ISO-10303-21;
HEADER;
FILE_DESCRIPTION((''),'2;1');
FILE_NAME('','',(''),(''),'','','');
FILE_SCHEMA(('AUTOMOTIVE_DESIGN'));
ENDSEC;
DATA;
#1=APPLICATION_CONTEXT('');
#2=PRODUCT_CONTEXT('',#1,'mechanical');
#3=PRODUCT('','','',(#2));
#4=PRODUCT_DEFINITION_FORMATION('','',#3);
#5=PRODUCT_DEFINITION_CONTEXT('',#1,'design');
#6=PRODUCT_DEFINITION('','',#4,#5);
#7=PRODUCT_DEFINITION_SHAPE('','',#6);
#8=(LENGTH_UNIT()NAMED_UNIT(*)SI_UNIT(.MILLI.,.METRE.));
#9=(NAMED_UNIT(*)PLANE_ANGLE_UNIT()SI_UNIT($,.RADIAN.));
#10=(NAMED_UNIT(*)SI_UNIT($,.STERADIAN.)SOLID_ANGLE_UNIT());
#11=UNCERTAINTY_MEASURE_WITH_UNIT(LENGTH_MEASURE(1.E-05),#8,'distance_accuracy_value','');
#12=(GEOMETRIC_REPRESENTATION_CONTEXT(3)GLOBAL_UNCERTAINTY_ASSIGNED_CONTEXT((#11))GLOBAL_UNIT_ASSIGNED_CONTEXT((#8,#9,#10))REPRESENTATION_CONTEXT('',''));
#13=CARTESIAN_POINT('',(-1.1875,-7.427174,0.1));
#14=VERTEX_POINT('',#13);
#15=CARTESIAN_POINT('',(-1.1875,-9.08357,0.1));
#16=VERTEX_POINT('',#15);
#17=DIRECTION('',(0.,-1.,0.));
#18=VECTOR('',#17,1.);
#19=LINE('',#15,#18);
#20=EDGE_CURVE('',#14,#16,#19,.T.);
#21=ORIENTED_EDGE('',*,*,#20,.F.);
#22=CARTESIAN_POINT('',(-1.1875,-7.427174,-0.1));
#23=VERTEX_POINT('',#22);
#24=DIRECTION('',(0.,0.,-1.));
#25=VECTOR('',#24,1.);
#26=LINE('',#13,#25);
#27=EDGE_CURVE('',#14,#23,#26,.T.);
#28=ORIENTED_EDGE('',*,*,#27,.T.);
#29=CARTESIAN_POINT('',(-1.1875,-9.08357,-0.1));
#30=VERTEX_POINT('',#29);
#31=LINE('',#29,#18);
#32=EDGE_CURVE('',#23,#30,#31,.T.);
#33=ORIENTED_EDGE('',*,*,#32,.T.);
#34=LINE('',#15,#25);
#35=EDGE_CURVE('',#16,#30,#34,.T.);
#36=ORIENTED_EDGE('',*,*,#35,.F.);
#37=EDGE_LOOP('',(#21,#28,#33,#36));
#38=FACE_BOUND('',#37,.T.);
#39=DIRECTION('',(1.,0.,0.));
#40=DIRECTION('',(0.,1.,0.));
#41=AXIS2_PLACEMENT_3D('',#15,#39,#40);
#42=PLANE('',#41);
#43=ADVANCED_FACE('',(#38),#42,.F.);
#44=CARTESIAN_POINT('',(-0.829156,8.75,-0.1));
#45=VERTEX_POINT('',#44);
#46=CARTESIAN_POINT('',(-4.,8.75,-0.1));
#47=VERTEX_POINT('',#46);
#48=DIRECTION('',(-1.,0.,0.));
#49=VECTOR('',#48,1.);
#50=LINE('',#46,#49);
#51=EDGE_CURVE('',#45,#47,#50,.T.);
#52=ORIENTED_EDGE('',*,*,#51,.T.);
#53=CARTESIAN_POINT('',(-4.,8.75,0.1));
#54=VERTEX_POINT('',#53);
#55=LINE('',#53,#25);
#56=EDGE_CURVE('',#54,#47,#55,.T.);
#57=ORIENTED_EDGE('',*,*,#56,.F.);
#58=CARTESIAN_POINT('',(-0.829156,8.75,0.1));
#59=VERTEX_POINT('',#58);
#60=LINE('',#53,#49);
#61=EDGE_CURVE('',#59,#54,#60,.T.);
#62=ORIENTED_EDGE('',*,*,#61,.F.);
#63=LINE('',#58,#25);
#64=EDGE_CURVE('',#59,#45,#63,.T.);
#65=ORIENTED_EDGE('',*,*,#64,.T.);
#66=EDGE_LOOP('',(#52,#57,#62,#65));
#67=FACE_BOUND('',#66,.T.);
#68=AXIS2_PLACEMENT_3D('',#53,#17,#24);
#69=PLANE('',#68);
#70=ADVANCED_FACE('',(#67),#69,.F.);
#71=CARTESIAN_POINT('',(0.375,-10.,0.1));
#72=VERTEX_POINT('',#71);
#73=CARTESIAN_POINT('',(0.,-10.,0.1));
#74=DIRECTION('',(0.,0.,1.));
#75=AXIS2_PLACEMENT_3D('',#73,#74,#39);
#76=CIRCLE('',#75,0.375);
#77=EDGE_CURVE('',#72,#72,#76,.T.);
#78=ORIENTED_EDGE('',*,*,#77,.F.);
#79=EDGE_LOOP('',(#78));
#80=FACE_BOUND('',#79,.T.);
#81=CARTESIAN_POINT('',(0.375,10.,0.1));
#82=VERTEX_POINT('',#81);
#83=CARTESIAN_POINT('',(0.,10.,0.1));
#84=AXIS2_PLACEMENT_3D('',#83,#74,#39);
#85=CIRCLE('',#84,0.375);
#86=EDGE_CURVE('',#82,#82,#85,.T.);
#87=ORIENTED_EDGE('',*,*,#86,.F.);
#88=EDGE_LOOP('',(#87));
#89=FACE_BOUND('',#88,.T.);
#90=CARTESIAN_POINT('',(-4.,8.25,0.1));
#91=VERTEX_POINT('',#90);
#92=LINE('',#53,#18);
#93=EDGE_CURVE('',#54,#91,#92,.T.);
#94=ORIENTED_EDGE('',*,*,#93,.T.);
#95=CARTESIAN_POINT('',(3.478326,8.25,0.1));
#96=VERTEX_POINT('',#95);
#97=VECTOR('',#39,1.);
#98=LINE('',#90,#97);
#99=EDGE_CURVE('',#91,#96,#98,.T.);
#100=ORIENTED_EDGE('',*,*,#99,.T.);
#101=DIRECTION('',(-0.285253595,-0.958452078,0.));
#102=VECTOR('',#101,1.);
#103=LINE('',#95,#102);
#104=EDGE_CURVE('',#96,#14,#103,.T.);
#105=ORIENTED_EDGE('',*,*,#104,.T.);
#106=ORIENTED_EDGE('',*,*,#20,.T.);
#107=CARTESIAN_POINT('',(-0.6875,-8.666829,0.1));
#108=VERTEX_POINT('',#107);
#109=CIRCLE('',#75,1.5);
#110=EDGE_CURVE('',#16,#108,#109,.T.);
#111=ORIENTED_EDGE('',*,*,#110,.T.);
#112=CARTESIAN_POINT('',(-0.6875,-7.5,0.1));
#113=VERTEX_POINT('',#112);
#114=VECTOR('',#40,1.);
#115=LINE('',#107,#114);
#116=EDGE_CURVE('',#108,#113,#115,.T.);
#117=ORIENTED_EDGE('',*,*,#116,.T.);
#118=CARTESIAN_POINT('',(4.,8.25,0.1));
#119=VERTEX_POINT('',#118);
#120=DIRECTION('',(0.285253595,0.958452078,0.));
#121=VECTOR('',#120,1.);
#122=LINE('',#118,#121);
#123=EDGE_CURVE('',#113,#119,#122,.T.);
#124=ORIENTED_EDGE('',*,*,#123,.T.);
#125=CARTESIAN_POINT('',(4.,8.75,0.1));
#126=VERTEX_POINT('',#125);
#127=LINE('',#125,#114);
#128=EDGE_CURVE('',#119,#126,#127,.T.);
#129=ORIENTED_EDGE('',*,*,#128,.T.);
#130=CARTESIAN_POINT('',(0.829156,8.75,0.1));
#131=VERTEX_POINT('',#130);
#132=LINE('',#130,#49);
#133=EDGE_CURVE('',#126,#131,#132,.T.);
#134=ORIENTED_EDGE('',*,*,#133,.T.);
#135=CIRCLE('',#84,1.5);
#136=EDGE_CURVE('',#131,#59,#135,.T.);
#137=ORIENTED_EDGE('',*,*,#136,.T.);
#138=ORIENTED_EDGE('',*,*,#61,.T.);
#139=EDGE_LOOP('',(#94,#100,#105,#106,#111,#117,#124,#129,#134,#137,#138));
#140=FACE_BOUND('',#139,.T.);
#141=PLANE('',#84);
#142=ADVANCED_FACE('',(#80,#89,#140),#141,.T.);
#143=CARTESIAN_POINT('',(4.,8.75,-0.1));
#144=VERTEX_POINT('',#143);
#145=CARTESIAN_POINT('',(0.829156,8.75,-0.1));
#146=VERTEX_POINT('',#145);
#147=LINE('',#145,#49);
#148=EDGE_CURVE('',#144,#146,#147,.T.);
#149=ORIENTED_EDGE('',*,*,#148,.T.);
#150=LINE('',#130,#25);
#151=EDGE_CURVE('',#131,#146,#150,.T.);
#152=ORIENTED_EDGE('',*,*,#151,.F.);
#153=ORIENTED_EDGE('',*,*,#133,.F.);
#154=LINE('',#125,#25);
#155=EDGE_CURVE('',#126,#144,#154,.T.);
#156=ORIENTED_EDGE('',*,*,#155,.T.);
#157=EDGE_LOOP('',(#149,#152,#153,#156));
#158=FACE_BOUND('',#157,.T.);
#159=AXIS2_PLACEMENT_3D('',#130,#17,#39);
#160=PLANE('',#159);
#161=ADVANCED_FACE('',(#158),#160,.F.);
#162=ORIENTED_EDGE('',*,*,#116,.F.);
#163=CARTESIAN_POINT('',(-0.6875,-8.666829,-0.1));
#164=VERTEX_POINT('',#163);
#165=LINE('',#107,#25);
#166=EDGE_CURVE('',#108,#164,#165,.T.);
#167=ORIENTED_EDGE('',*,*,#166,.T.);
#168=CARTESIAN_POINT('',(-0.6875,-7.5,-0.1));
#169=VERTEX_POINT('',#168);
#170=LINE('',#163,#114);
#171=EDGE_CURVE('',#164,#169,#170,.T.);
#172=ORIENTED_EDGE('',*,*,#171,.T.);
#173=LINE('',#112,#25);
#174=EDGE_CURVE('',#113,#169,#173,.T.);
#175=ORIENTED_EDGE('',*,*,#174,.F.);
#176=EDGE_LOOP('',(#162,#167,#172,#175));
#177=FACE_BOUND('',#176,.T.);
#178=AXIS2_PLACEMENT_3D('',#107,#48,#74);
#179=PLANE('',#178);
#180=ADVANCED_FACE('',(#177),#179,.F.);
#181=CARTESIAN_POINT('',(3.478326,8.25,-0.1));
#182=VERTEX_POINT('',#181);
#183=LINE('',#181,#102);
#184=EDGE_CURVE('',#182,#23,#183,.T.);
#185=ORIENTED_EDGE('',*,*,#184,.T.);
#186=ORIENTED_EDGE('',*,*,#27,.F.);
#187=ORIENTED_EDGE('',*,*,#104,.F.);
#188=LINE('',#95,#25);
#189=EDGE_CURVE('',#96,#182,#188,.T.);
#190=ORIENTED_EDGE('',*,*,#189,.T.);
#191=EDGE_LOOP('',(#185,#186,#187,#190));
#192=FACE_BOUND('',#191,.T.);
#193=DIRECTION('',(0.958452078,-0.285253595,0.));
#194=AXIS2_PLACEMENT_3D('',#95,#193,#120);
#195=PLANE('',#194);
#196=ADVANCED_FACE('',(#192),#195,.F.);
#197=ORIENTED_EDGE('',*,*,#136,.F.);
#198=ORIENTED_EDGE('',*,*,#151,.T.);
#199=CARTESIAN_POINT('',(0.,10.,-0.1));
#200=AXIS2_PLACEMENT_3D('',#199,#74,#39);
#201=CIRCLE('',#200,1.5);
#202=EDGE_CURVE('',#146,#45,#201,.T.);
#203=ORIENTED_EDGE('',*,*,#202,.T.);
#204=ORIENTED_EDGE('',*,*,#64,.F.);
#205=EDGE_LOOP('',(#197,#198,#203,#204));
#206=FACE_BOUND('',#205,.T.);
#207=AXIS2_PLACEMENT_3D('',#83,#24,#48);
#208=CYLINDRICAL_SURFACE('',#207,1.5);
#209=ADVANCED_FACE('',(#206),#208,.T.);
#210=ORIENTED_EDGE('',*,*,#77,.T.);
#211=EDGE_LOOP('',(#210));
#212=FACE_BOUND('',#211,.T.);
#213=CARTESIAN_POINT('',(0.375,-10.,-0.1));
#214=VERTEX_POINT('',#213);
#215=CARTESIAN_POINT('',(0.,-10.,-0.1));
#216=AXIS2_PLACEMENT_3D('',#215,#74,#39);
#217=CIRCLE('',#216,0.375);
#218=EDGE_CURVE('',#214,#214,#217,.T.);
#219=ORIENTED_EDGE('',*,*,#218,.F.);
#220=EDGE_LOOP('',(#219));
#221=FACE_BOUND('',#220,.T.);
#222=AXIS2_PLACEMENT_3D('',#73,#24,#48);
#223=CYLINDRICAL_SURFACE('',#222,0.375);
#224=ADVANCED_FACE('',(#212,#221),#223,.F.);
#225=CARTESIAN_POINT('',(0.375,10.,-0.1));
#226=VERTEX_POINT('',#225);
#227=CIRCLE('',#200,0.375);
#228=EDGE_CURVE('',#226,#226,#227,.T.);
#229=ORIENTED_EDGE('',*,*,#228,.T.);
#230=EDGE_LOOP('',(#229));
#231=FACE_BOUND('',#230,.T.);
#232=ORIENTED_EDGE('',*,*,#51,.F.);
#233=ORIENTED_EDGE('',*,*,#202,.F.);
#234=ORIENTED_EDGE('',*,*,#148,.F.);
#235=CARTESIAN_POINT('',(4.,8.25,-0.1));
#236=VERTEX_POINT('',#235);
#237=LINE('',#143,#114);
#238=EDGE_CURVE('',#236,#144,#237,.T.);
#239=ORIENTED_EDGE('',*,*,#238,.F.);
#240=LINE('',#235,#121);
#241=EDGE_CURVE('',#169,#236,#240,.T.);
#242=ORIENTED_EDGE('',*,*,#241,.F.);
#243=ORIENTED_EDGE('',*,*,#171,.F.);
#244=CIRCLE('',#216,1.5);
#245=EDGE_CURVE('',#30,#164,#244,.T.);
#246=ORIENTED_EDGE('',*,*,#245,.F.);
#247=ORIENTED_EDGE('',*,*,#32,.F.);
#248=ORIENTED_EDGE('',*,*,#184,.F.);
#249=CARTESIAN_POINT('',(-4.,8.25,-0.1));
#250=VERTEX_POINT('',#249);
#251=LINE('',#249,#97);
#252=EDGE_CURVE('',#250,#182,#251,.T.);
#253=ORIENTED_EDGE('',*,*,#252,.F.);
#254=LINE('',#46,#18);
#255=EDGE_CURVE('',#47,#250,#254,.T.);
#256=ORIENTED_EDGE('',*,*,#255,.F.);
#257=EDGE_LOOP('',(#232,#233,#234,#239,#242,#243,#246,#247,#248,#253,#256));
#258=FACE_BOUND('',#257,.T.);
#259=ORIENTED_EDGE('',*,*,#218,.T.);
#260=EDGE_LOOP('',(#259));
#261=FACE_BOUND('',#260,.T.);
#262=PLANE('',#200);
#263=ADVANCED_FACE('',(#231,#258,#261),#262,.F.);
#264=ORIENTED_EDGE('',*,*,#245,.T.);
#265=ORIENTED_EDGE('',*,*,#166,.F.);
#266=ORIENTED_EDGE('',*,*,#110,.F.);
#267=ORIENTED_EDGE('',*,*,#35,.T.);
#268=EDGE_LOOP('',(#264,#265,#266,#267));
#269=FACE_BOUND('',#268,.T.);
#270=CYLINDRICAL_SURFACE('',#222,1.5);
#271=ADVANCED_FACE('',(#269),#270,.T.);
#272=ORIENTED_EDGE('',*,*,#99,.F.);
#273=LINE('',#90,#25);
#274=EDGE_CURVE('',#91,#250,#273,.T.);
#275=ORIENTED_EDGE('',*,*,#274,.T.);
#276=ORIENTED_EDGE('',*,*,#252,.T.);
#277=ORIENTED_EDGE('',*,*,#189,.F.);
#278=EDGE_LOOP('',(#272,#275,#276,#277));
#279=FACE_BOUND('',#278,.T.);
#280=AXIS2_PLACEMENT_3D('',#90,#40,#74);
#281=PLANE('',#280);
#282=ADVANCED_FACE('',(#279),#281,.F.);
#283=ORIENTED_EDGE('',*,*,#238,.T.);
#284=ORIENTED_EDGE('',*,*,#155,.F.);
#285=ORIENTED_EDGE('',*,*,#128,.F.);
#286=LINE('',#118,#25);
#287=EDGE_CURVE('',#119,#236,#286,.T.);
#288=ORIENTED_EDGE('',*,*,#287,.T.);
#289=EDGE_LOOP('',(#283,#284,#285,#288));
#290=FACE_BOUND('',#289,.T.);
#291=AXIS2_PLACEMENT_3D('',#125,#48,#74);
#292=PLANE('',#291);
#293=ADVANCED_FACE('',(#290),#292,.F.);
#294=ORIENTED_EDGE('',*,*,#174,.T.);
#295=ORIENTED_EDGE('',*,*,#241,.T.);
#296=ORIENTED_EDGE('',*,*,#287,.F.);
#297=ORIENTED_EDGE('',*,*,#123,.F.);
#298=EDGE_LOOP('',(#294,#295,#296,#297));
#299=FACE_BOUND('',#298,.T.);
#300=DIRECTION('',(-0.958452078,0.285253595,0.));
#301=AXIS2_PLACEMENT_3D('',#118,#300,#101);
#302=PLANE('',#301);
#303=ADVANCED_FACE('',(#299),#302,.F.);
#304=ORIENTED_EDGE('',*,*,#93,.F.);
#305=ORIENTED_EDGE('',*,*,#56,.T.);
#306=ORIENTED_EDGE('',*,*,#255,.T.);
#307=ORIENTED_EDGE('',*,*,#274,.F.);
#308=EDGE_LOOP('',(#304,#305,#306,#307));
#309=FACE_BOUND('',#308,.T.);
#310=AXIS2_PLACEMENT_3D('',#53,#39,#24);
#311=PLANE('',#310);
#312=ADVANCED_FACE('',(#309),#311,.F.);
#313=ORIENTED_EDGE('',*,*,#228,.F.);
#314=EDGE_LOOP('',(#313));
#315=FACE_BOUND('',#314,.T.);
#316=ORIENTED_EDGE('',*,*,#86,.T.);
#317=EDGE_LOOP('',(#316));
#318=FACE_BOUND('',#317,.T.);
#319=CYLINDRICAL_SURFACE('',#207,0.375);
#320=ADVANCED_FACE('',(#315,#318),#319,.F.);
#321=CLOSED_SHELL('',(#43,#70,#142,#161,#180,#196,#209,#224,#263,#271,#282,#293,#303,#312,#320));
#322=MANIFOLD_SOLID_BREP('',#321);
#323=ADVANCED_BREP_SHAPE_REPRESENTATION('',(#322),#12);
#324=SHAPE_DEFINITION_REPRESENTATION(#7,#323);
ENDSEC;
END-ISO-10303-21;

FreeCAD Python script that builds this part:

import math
import FreeCAD as App
import Part
import Sketcher

V = App.Vector

doc = App.newDocument("Part")
body = doc.addObject("PartDesign::Body", "Body")

# Sketch on XY plane
sketch1 = body.newObject("Sketcher::SketchObject", "Sketch")
sketch1.AttachmentSupport = (doc.getObject("XY_Plane"), [""])
sketch1.MapMode = "FlatFace"
sketch1.addGeometry([
    Part.LineSegment(V(-0.829156, 8.75, 0), V(-4, 8.75, 0)),  # 0
    Part.LineSegment(V(-4, 8.75, 0), V(-4, 8.25, 0)),  # 1
    Part.LineSegment(V(-4, 8.25, 0), V(3.478326, 8.25, 0)),  # 2
    Part.LineSegment(V(3.478326, 8.25, 0), V(-1.1875, -7.427174, 0)),  # 3
    Part.LineSegment(V(-1.1875, -7.427174, 0), V(-1.1875, -9.08357, 0)),  # 4
    Part.ArcOfCircle(Part.Circle(V(0, -10, 0), V(0, 0, 1), 1.5), math.radians(142.341538), math.radians(477.279613)),  # 5
    Part.LineSegment(V(-0.6875, -8.666829, 0), V(-0.6875, -7.5, 0)),  # 6
    Part.LineSegment(V(-0.6875, -7.5, 0), V(4, 8.25, 0)),  # 7
    Part.LineSegment(V(4, 8.25, 0), V(4, 8.75, 0)),  # 8
    Part.LineSegment(V(4, 8.75, 0), V(0.829156, 8.75, 0)),  # 9
    Part.ArcOfCircle(Part.Circle(V(0, 10, 0), V(0, 0, 1), 1.5), math.radians(-56.44269), math.radians(236.44269)),  # 10
    Part.Circle(V(0, -10, 0), V(0, 0, 1), 0.375),  # 11
    Part.Circle(V(0, 10, 0), V(0, 0, 1), 0.375),  # 12
], False)
sketch1.addConstraint([
    Sketcher.Constraint("Coincident", 0, 2, 1, 1),
    Sketcher.Constraint("Coincident", 1, 2, 2, 1),
    Sketcher.Constraint("Coincident", 2, 2, 3, 1),
    Sketcher.Constraint("Coincident", 3, 2, 4, 1),
    Sketcher.Constraint("Coincident", 4, 2, 5, 1),
    Sketcher.Constraint("Coincident", 5, 2, 6, 1),
    Sketcher.Constraint("Coincident", 6, 2, 7, 1),
    Sketcher.Constraint("Coincident", 7, 2, 8, 1),
    Sketcher.Constraint("Coincident", 8, 2, 9, 1),
    Sketcher.Constraint("Coincident", 9, 2, 10, 1),
    Sketcher.Constraint("Coincident", 10, 2, 0, 1),
    Sketcher.Constraint("Horizontal", 0),
    Sketcher.Constraint("Vertical", 1),
    Sketcher.Constraint("Horizontal", 2),
    Sketcher.Constraint("Vertical", 4),
    Sketcher.Constraint("Vertical", 6),
    Sketcher.Constraint("Vertical", 8),
    Sketcher.Constraint("Horizontal", 9),
    Sketcher.Constraint("Coincident", 11, 3, 5, 3),
    Sketcher.Constraint("Coincident", 12, 3, 10, 3),
    Sketcher.Constraint("Equal", 5, 10),
    Sketcher.Constraint("Equal", 11, 12),
    Sketcher.Constraint("Symmetric", 5, 3, 10, 3, -1, 1),
    Sketcher.Constraint("Symmetric", 1, 2, 7, 2, -2),
    Sketcher.Constraint("Symmetric", 9, 2, 10, 2, -2),
    Sketcher.Constraint("Parallel", 3, 7),
    Sketcher.Constraint("Radius", 5, 1.5),
    Sketcher.Constraint("Diameter", 11, 0.75),
    Sketcher.Constraint("DistanceY", 1, 2, 1, 1, 0.5),
    Sketcher.Constraint("DistanceY", 5, 3, -1, 1, 10.0),
    Sketcher.Constraint("DistanceX", 0, 2, -1, 1, 4.0),
    Sketcher.Constraint("DistanceY", 6, 2, -1, 1, 7.5),
    Sketcher.Constraint("DistanceX", 4, 2, 5, 2, 0.5),
    Sketcher.Constraint("DistanceY", -1, 1, 0, 2, 8.75),
    Sketcher.Constraint("DistanceY", 6, 1, 6, 2, 1.166829),
    Sketcher.Constraint("DistanceX", 2, 1, 2, 2, 7.478326),
])
pad1 = body.newObject("PartDesign::Pad", "Pad")
pad1.Profile = sketch1
pad1.Length = 0.2
pad1.Midplane = True

doc.recompute()
